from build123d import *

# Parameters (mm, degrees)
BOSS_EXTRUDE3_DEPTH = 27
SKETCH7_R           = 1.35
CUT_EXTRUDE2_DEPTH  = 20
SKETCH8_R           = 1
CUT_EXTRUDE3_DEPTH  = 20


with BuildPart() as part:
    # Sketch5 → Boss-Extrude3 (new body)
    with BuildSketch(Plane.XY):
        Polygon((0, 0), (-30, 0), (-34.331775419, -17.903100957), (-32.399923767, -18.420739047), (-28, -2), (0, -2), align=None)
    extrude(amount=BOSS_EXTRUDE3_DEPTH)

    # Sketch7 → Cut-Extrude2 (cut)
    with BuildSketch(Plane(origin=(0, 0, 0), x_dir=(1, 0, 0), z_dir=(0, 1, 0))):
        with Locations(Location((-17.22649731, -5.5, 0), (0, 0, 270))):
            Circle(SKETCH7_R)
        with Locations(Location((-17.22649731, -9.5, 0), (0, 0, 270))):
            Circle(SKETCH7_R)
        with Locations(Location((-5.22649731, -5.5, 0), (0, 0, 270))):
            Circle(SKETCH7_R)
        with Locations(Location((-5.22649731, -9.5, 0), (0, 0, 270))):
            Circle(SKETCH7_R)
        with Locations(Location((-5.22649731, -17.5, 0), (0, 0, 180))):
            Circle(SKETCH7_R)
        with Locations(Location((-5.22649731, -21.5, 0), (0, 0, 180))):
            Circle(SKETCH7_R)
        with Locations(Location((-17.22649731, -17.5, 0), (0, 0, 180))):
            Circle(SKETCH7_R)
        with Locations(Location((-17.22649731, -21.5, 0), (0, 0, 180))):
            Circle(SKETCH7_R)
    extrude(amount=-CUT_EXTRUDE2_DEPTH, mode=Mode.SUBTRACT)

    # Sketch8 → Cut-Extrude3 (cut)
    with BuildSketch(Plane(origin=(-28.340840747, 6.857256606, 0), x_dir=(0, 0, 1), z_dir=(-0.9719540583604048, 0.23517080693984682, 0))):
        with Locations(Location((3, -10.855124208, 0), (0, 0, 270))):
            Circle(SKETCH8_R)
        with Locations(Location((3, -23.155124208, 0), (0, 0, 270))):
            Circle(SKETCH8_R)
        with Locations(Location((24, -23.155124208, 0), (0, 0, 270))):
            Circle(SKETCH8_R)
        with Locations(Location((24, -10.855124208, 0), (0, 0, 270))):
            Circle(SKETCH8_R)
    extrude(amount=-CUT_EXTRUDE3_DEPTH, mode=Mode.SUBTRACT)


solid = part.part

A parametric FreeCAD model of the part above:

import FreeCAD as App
import Part
import Sketcher
from FreeCAD import Vector
Q = App.Units.Quantity


def add_polygon(sketch, points):
    """Adds a closed chain of lines whose ends are joined by coincident constraints."""
    first, n = sketch.GeometryCount, len(points)
    for a, b in zip(points, points[1:] + points[:1]):
        sketch.addGeometry(Part.LineSegment(App.Vector(*a, 0), App.Vector(*b, 0)), False)
    for i in range(n):
        sketch.addConstraint(Sketcher.Constraint("Coincident", first + i, 2, first + (i + 1) % n, 1))

doc = App.newDocument("Part")
body = doc.addObject("PartDesign::Body", "Body")

# Sketch on XY plane
sketch1 = body.newObject("Sketcher::SketchObject", "Sketch")
sketch1.AttachmentSupport = (doc.getObject("XY_Plane"), [""])
sketch1.MapMode = "FlatFace"
add_polygon(sketch1, [(0, 0), (-30, 0), (-34.3, -17.9), (-32.4, -18.4), (-28, -2), (0, -2)])  # lines 0-5
sketch1.addConstraint(Sketcher.Constraint("Horizontal", 0))
sketch1.addConstraint(Sketcher.Constraint("Horizontal", 4))
sketch1.addConstraint(Sketcher.Constraint("Vertical", 5))
sketch1.addConstraint(Sketcher.Constraint("Coincident", 5, 2, -1, 1))
sketch1.addConstraint(Sketcher.Constraint("Perpendicular", 2, 3))
sketch1.addConstraint(Sketcher.Constraint("DistanceX", 0, 2, 0, 1, Q("30 mm")))
sketch1.addConstraint(Sketcher.Constraint("DistanceX", 4, 1, 4, 2, Q("28 mm")))
sketch1.addConstraint(Sketcher.Constraint("DistanceY", 5, 1, 5, 2, Q("2 mm")))
sketch1.addConstraint(Sketcher.Constraint("Angle", 2, Q("-15 deg")))
sketch1.addConstraint(Sketcher.Constraint("Distance", 2, Q("2 mm")))
sketch1.addConstraint(Sketcher.Constraint("Distance", 3, Q("17 mm")))
pad1 = body.newObject("PartDesign::Pad", "Pad")
pad1.Profile = sketch1
pad1.Length = 27

# Sketch on XZ plane
sketch2 = body.newObject("Sketcher::SketchObject", "Sketch001")
sketch2.AttachmentSupport = (doc.getObject("XZ_Plane"), [""])
sketch2.MapMode = "FlatFace"
sketch2.addGeometry(Part.Circle(Vector(-17.2, 5.5, 0), Vector(0, 0, 1), 1.4), False)
sketch2.addGeometry(Part.Circle(Vector(-17.2, 9.5, 0), Vector(0, 0, 1), 1.4), False)
sketch2.addGeometry(Part.Circle(Vector(-5.2, 5.5, 0), Vector(0, 0, 1), 1.4), False)
sketch2.addGeometry(Part.Circle(Vector(-5.2, 9.5, 0), Vector(0, 0, 1), 1.4), False)
sketch2.addGeometry(Part.Circle(Vector(-5.2, 17.5, 0), Vector(0, 0, 1), 1.4), False)
sketch2.addGeometry(Part.Circle(Vector(-5.2, 21.5, 0), Vector(0, 0, 1), 1.4), False)
sketch2.addGeometry(Part.Circle(Vector(-17.2, 17.5, 0), Vector(0, 0, 1), 1.4), False)
sketch2.addGeometry(Part.Circle(Vector(-17.2, 21.5, 0), Vector(0, 0, 1), 1.4), False)
sketch2.addConstraint(Sketcher.Constraint("Equal", 0, 1))
sketch2.addConstraint(Sketcher.Constraint("Equal", 1, 2))
sketch2.addConstraint(Sketcher.Constraint("Equal", 2, 3))
sketch2.addConstraint(Sketcher.Constraint("Equal", 3, 4))
sketch2.addConstraint(Sketcher.Constraint("Equal", 4, 5))
sketch2.addConstraint(Sketcher.Constraint("Equal", 5, 6))
sketch2.addConstraint(Sketcher.Constraint("Equal", 6, 7))
sketch2.addConstraint(Sketcher.Constraint("Horizontal", 0, 3, 2, 3))
sketch2.addConstraint(Sketcher.Constraint("Horizontal", 1, 3, 3, 3))
sketch2.addConstraint(Sketcher.Constraint("Horizontal", 4, 3, 6, 3))
sketch2.addConstraint(Sketcher.Constraint("Horizontal", 5, 3, 7, 3))
sketch2.addConstraint(Sketcher.Constraint("Vertical", 0, 3, 1, 3))
sketch2.addConstraint(Sketcher.Constraint("Vertical", 2, 3, 3, 3))
sketch2.addConstraint(Sketcher.Constraint("Vertical", 3, 3, 4, 3))
sketch2.addConstraint(Sketcher.Constraint("Vertical", 4, 3, 5, 3))
sketch2.addConstraint(Sketcher.Constraint("Vertical", 1, 3, 6, 3))
sketch2.addConstraint(Sketcher.Constraint("Vertical", 6, 3, 7, 3))
sketch2.addConstraint(Sketcher.Constraint("Diameter", 0, Q("2.7 mm")))
sketch2.addConstraint(Sketcher.Constraint("DistanceY", 0, 3, 1, 3, Q("4 mm")))
sketch2.addConstraint(Sketcher.Constraint("DistanceX", 0, 3, 2, 3, Q("12 mm")))
sketch2.addConstraint(Sketcher.Constraint("DistanceY", 3, 3, 4, 3, Q("8 mm")))
sketch2.addConstraint(Sketcher.Constraint("DistanceY", 4, 3, 5, 3, Q("4 mm")))
sketch2.addConstraint(Sketcher.Constraint("DistanceY", -1, 1, 0, 3, Q("5.5 mm")))
sketch2.addConstraint(Sketcher.Constraint("DistanceX", 0, 3, -1, 1, Q("17.226497 mm")))
pocket1 = body.newObject("PartDesign::Pocket", "Pocket")
pocket1.Profile = sketch2
pocket1.Length = 20
pocket1.Reversed = True

# Sketch on an angled plane
sketch3 = body.newObject("Sketcher::SketchObject", "Sketch002")
sketch3.Placement = App.Placement(Vector(-28.340841, 6.857257, 0), App.Rotation(Vector(0, 0, 1), Vector(0.235170807, 0.971954058, 0), Vector(-0.971954058, 0.235170807, 0), "ZXY"))
sketch3.addGeometry(Part.Circle(Vector(3, -10.9, 0), Vector(0, 0, 1), 1), False)
sketch3.addGeometry(Part.Circle(Vector(3, -23.2, 0), Vector(0, 0, 1), 1), False)
sketch3.addGeometry(Part.Circle(Vector(24, -23.2, 0), Vector(0, 0, 1), 1), False)
sketch3.addGeometry(Part.Circle(Vector(24, -10.9, 0), Vector(0, 0, 1), 1), False)
sketch3.addConstraint(Sketcher.Constraint("Equal", 0, 1))
sketch3.addConstraint(Sketcher.Constraint("Equal", 1, 2))
sketch3.addConstraint(Sketcher.Constraint("Equal", 2, 3))
sketch3.addConstraint(Sketcher.Constraint("Horizontal", 1, 3, 2, 3))
sketch3.addConstraint(Sketcher.Constraint("Horizontal", 0, 3, 3, 3))
sketch3.addConstraint(Sketcher.Constraint("Vertical", 0, 3, 1, 3))
sketch3.addConstraint(Sketcher.Constraint("Vertical", 2, 3, 3, 3))
sketch3.addConstraint(Sketcher.Constraint("Diameter", 0, Q("2 mm")))
sketch3.addConstraint(Sketcher.Constraint("DistanceX", -1, 1, 0, 3, Q("3 mm")))
sketch3.addConstraint(Sketcher.Constraint("DistanceX", -1, 1, 2, 3, Q("24 mm")))
sketch3.addConstraint(Sketcher.Constraint("DistanceY", 1, 3, 0, 3, Q("12.3 mm")))
sketch3.addConstraint(Sketcher.Constraint("DistanceY", 0, 3, -1, 1, Q("10.855124 mm")))
pocket2 = body.newObject("PartDesign::Pocket", "Pocket001")
pocket2.Profile = sketch3
pocket2.Length = 20

doc.recompute()
